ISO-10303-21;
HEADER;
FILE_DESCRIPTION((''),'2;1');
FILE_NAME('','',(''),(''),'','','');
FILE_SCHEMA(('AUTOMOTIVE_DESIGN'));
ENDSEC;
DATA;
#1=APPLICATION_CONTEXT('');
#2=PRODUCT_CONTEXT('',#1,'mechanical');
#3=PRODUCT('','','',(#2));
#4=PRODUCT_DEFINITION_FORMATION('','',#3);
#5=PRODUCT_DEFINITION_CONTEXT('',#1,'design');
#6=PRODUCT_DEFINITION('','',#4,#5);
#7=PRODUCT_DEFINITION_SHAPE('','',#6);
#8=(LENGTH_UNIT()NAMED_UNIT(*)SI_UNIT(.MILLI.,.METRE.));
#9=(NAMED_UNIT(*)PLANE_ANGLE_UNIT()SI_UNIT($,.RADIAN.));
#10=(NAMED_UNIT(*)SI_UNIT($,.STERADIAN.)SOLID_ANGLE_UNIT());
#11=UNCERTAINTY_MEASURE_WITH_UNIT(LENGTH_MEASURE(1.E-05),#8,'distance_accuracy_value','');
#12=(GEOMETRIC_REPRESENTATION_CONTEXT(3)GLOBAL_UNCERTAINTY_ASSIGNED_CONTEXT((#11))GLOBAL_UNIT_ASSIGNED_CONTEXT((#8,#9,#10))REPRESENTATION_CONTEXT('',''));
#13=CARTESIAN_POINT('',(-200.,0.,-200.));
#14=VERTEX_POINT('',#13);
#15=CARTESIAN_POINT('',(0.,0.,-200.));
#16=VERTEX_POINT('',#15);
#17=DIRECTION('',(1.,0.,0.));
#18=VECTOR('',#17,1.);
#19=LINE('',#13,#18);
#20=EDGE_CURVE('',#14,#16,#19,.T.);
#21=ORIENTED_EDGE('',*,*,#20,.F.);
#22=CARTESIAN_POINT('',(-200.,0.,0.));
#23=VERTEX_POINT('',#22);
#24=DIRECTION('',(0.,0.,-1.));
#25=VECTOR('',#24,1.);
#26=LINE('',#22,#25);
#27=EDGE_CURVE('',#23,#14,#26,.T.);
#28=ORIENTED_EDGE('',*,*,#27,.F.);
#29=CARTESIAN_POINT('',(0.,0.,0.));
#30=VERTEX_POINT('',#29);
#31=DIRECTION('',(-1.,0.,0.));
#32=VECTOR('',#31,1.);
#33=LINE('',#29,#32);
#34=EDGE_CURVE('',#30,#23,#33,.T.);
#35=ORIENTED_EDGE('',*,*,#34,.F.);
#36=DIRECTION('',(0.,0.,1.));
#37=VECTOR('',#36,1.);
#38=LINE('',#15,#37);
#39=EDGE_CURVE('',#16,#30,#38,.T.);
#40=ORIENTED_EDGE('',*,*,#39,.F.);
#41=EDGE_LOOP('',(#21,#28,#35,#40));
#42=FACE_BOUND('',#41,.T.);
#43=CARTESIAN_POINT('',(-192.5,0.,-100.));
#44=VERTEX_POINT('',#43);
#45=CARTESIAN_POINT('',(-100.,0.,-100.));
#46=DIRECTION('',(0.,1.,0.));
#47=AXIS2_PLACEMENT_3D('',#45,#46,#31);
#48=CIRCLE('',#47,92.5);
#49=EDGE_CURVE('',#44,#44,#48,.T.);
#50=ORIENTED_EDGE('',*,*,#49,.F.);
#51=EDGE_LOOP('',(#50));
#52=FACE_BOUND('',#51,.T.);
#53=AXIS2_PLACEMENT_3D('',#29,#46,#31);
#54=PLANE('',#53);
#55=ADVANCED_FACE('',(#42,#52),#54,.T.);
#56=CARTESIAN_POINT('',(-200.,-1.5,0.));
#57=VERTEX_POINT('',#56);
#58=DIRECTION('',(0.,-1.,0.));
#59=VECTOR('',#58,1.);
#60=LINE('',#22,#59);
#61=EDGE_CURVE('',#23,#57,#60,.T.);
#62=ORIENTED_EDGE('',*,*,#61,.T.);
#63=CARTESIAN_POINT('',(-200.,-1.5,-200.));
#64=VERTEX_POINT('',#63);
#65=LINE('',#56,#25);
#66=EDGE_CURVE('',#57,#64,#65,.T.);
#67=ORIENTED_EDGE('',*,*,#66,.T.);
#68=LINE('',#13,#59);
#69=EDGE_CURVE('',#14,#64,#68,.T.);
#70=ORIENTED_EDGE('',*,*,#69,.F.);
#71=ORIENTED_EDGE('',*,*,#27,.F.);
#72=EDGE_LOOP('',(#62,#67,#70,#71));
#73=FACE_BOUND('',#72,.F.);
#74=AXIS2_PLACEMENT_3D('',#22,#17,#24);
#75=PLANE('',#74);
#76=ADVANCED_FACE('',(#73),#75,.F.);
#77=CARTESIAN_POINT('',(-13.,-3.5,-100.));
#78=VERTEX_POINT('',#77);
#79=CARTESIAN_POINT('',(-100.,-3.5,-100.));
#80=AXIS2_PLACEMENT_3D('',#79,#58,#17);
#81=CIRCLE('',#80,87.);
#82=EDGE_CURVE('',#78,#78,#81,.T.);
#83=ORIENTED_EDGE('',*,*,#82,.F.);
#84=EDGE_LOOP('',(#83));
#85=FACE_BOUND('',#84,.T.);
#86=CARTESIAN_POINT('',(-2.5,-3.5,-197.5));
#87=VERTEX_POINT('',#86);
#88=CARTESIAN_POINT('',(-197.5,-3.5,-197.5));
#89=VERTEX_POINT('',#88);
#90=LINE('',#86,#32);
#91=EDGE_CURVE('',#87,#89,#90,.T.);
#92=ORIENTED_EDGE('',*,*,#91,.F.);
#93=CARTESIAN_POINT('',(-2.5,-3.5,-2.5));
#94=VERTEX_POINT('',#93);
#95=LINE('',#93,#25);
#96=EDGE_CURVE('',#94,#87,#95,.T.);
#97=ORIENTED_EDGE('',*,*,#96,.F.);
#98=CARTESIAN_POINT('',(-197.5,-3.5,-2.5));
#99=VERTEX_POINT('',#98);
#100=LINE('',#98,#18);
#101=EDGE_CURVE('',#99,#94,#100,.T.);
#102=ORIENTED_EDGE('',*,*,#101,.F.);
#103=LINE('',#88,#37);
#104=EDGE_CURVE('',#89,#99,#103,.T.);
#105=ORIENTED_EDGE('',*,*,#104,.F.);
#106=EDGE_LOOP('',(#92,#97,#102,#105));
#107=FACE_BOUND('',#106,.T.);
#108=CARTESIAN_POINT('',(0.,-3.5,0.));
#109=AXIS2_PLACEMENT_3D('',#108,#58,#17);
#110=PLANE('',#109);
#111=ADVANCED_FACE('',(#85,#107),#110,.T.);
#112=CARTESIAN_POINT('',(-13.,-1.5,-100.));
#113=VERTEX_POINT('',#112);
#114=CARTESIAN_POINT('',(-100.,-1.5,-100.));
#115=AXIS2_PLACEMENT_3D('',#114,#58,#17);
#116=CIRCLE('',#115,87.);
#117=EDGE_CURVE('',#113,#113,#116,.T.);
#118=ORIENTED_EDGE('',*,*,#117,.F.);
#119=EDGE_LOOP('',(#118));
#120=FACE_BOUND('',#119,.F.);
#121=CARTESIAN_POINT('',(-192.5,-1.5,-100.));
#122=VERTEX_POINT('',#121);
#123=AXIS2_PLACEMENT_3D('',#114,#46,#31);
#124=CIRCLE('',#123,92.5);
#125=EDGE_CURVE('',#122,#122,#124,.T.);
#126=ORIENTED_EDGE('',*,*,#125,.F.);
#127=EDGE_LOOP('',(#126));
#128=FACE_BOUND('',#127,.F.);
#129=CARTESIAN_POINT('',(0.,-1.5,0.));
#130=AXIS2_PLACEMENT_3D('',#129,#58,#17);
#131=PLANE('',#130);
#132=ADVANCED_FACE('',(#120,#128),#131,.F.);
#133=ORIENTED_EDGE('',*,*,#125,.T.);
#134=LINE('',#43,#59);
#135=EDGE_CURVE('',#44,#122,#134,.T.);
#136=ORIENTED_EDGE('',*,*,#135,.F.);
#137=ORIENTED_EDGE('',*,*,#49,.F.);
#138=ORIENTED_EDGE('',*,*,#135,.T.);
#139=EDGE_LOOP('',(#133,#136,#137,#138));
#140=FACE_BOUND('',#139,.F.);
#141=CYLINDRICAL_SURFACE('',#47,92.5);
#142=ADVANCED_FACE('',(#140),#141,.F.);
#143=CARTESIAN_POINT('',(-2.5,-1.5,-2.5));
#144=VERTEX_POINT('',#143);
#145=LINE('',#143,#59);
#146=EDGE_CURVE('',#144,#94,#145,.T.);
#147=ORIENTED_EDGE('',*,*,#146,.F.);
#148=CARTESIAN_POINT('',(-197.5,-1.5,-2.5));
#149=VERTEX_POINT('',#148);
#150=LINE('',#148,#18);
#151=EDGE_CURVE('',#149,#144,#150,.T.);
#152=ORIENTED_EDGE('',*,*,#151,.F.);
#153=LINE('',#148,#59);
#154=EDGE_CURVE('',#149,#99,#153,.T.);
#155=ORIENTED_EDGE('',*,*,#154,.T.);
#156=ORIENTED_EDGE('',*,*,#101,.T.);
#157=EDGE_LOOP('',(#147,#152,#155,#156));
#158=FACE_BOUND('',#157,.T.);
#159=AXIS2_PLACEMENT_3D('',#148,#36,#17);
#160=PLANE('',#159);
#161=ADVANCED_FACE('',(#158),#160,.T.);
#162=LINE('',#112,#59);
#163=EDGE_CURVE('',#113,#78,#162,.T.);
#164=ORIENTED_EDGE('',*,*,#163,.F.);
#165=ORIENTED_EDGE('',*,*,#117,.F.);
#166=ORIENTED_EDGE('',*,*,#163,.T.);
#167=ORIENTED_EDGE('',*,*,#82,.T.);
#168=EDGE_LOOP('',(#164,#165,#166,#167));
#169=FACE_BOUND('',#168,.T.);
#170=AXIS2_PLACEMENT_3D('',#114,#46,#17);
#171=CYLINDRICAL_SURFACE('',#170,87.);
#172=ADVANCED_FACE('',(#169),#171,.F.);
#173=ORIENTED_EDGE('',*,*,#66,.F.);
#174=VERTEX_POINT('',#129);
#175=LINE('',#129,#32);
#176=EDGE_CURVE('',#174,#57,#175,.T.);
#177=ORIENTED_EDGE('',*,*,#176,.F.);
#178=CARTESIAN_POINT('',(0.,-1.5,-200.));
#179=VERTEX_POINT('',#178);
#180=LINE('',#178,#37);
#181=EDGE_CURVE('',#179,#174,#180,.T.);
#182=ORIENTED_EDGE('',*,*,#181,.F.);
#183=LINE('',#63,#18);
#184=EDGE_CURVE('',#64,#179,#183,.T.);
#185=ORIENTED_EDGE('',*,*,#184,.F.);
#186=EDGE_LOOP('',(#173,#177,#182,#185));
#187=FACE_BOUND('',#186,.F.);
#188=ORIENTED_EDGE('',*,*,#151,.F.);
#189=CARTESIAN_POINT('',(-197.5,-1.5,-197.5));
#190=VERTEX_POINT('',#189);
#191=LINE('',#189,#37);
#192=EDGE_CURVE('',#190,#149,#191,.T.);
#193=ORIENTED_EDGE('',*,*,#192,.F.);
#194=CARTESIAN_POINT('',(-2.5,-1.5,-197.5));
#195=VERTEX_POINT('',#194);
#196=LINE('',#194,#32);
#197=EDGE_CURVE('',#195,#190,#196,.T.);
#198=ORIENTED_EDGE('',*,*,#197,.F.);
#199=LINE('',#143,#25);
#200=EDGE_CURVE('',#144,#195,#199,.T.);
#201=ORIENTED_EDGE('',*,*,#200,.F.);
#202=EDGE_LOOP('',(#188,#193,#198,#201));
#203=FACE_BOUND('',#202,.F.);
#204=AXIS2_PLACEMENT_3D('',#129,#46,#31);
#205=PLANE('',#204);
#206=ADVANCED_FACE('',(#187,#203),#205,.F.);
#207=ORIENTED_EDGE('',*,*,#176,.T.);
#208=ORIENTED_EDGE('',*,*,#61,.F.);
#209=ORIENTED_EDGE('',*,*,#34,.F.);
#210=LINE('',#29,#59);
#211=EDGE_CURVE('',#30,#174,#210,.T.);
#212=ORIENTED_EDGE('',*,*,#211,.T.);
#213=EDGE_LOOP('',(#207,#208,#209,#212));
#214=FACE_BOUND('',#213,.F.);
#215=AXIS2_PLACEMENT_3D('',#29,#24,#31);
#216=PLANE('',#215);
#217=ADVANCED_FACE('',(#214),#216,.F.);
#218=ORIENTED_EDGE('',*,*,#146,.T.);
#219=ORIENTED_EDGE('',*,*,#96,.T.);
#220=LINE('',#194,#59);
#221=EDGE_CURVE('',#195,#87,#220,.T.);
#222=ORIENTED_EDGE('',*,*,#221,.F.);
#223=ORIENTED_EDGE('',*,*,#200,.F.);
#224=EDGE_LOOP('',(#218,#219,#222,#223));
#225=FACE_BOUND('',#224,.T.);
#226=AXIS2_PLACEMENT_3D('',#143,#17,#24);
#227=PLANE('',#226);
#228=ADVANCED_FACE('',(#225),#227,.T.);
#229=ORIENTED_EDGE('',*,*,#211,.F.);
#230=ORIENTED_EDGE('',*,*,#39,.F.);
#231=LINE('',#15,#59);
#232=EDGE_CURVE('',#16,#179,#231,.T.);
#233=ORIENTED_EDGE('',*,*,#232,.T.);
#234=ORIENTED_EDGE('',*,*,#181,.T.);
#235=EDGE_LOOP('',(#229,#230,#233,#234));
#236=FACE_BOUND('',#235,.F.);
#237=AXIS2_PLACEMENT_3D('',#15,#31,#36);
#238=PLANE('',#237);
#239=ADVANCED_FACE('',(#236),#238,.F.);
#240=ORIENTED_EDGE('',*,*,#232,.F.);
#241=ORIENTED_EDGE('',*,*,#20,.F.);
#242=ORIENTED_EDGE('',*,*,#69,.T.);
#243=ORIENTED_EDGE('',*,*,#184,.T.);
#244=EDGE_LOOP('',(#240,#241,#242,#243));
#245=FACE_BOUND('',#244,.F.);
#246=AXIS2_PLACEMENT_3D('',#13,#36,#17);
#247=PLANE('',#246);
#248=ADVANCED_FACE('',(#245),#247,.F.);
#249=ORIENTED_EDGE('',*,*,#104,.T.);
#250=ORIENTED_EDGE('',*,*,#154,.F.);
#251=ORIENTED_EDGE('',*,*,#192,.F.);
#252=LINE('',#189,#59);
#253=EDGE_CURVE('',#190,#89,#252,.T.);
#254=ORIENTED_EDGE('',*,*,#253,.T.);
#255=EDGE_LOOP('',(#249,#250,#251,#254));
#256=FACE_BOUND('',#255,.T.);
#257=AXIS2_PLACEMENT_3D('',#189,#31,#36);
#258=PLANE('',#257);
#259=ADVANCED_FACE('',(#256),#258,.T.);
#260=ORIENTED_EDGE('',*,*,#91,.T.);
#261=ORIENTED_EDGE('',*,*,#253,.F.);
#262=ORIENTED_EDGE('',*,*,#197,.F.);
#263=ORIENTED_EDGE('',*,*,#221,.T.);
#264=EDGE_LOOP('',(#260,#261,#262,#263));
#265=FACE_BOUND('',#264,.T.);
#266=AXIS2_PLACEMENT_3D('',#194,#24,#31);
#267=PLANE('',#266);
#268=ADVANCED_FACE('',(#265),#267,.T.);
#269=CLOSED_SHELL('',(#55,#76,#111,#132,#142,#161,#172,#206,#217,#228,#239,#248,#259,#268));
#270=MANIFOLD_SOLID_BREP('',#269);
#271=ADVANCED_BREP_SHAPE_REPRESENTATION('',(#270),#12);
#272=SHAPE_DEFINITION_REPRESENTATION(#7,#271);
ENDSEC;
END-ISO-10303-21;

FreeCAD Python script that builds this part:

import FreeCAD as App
import Part
import Sketcher

doc = App.newDocument("Part")
body = doc.addObject("PartDesign::Body", "Body")

# Sketch on XZ plane
sketch1 = doc.addObject("Sketcher::SketchObject", "Sketch")
body.addObject(sketch1)
sketch1.AttachmentSupport = (doc.XZ_Plane, [""])
sketch1.MapMode = "FlatFace"
sketch1.addGeometry([
    Part.LineSegment(App.Vector(-200, 0, 0), App.Vector(0, 0, 0)),  # 0
    Part.LineSegment(App.Vector(0, 0, 0), App.Vector(0, -200, 0)),  # 1
    Part.LineSegment(App.Vector(0, -200, 0), App.Vector(-200, -200, 0)),  # 2
    Part.LineSegment(App.Vector(-200, -200, 0), App.Vector(-200, 0, 0)),  # 3
    Part.Circle(App.Vector(-100, -100, 0), App.Vector(0, 0, 1), 92),  # 4
], False)
sketch1.addConstraint([
    Sketcher.Constraint("Coincident", 0, 2, 1, 1),
    Sketcher.Constraint("Coincident", 1, 2, 2, 1),
    Sketcher.Constraint("Coincident", 2, 2, 3, 1),
    Sketcher.Constraint("Coincident", 3, 2, 0, 1),
    Sketcher.Constraint("Horizontal", 0),
    Sketcher.Constraint("Vertical", 1),
    Sketcher.Constraint("Horizontal", 2),
    Sketcher.Constraint("Vertical", 3),
    Sketcher.Constraint("Coincident", 0, 2, -1, 1),
    Sketcher.Constraint("Equal", 2, 1),
    Sketcher.Constraint("Diameter", 4, 185.0),
    Sketcher.Constraint("DistanceX", 0, 1, 0, 2, 200.0),
    Sketcher.Constraint("DistanceX", 4, 3, -1, 1, 100.0),
    Sketcher.Constraint("DistanceY", 4, 3, -1, 1, 100.0),
])
pad1 = doc.addObject("PartDesign::Pad", "Pad")
body.addObject(pad1)
pad1.Profile = sketch1
pad1.Length = 1.5

# Sketch on XZ plane
sketch2 = doc.addObject("Sketcher::SketchObject", "Sketch001")
body.addObject(sketch2)
sketch2.AttachmentSupport = (doc.XZ_Plane, [""])
sketch2.MapMode = "FlatFace"
sketch2.AttachmentOffset = App.Placement(App.Vector(0, 0, 1.5), App.Rotation())
sketch2.addGeometry([
    Part.LineSegment(App.Vector(-2, -2, 0), App.Vector(-198, -2, 0)),  # 0
    Part.LineSegment(App.Vector(-198, -2, 0), App.Vector(-198, -198, 0)),  # 1
    Part.LineSegment(App.Vector(-198, -198, 0), App.Vector(-2, -198, 0)),  # 2
    Part.LineSegment(App.Vector(-2, -198, 0), App.Vector(-2, -2, 0)),  # 3
    Part.Circle(App.Vector(-100, -100, 0), App.Vector(0, 0, 1), 87),  # 4
], False)
sketch2.addConstraint([
    Sketcher.Constraint("Coincident", 0, 2, 1, 1),
    Sketcher.Constraint("Coincident", 1, 2, 2, 1),
    Sketcher.Constraint("Coincident", 2, 2, 3, 1),
    Sketcher.Constraint("Coincident", 3, 2, 0, 1),
    Sketcher.Constraint("Horizontal", 0),
    Sketcher.Constraint("Vertical", 1),
    Sketcher.Constraint("Horizontal", 2),
    Sketcher.Constraint("Vertical", 3),
    Sketcher.Constraint("Equal", 2, 1),
    Sketcher.Constraint("Diameter", 4, 174.0),
    Sketcher.Constraint("DistanceX", 0, 2, 0, 1, 195.0),
    Sketcher.Constraint("DistanceX", 4, 3, -1, 1, 100.0),
    Sketcher.Constraint("DistanceY", 4, 3, -1, 1, 100.0),
    Sketcher.Constraint("DistanceX", 0, 2, -1, 1, 197.5),
    Sketcher.Constraint("DistanceY", 0, 2, -1, 1, 2.5),
])
pad2 = doc.addObject("PartDesign::Pad", "Pad001")
body.addObject(pad2)
pad2.Profile = sketch2
pad2.Length = 2

doc.recompute()
